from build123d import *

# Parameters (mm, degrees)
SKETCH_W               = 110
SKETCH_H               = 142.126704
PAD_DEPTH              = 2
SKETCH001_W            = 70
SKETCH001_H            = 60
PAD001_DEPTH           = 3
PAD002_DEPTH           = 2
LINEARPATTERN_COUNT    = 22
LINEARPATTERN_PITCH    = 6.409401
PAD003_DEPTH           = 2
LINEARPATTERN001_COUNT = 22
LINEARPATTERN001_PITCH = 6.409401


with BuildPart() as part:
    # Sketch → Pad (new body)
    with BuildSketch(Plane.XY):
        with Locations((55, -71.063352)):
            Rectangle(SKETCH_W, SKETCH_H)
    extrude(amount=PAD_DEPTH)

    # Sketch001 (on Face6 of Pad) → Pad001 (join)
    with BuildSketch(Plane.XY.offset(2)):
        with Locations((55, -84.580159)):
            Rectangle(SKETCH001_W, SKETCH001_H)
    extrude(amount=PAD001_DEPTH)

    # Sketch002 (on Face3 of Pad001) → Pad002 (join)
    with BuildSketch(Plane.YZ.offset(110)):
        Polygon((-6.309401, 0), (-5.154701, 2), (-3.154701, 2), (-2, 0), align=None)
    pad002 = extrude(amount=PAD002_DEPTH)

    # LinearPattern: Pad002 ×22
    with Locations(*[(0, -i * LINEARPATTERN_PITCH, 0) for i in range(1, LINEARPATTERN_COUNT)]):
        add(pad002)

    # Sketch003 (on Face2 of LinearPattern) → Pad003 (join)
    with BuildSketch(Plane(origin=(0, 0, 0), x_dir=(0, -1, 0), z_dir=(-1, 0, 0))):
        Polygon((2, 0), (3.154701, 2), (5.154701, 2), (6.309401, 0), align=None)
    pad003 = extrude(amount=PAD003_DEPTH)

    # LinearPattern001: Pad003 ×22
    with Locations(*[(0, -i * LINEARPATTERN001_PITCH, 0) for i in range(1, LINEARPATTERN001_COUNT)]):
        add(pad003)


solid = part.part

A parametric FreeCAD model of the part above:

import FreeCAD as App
import Part
import Sketcher
Q = App.Units.Quantity


def add_polygon(sketch, points):
    """Adds a closed chain of lines whose ends are joined by coincident constraints."""
    first, n = sketch.GeometryCount, len(points)
    for a, b in zip(points, points[1:] + points[:1]):
        sketch.addGeometry(Part.LineSegment(App.Vector(*a, 0), App.Vector(*b, 0)), False)
    for i in range(n):
        sketch.addConstraint(Sketcher.Constraint("Coincident", first + i, 2, first + (i + 1) % n, 1))

doc = App.newDocument("Part")
body = doc.addObject("PartDesign::Body", "Body")

# Sketch on XY plane
sketch1 = body.newObject("Sketcher::SketchObject", "Sketch")
sketch1.AttachmentSupport = (doc.getObject("XY_Plane"), [""])
sketch1.MapMode = "FlatFace"
add_polygon(sketch1, [(0, 0), (0, -142), (110, -142), (110, 0)])  # lines 0-3
sketch1.addConstraint(Sketcher.Constraint("Vertical", 0))
sketch1.addConstraint(Sketcher.Constraint("Horizontal", 1))
sketch1.addConstraint(Sketcher.Constraint("Vertical", 2))
sketch1.addConstraint(Sketcher.Constraint("Horizontal", 3))
sketch1.addConstraint(Sketcher.Constraint("Coincident", 3, 2, -1, 1))
sketch1.addConstraint(Sketcher.Constraint("DistanceX", 1, 1, 1, 2, 110.0))
sketch1.addConstraint(Sketcher.Constraint("DistanceY", 0, 2, 0, 1, 142.126704))
pad1 = body.newObject("PartDesign::Pad", "Pad")
pad1.Profile = sketch1
pad1.Length = 2

# Sketch on XY plane
sketch2 = body.newObject("Sketcher::SketchObject", "Sketch001")
sketch2.AttachmentSupport = (doc.getObject("XY_Plane"), [""])
sketch2.MapMode = "FlatFace"
sketch2.AttachmentOffset = App.Placement(App.Vector(0, 0, 2), App.Rotation())
add_polygon(sketch2, [(20, -55), (20, -115), (90, -115), (90, -55)])  # lines 0-3
sketch2.addConstraint(Sketcher.Constraint("Vertical", 0))
sketch2.addConstraint(Sketcher.Constraint("Horizontal", 1))
sketch2.addConstraint(Sketcher.Constraint("Vertical", 2))
sketch2.addConstraint(Sketcher.Constraint("Horizontal", 3))
sketch2.addConstraint(Sketcher.Constraint("DistanceX", 1, 1, 1, 2, 70.0))
sketch2.addConstraint(Sketcher.Constraint("DistanceY", 0, 2, 0, 1, 60.0))
sketch2.addConstraint(Sketcher.Constraint("DistanceX", -1, 1, 0, 2, 20.0))
sketch2.addConstraint(Sketcher.Constraint("DistanceY", 0, 2, -1, 1, 114.580159))
pad2 = body.newObject("PartDesign::Pad", "Pad001")
pad2.Profile = sketch2
pad2.Length = 3

# Sketch on YZ plane
sketch3 = body.newObject("Sketcher::SketchObject", "Sketch002")
sketch3.AttachmentSupport = (doc.getObject("YZ_Plane"), [""])
sketch3.MapMode = "FlatFace"
sketch3.AttachmentOffset = App.Placement(App.Vector(0, 0, 110), App.Rotation())
add_polygon(sketch3, [(-5.2, 2), (-6.3, 0), (-2, 0), (-3.2, 2)])  # lines 0-3
sketch3.addConstraint(Sketcher.Constraint("Horizontal", 1))
sketch3.addConstraint(Sketcher.Constraint("Horizontal", 3))
sketch3.addConstraint(Sketcher.Constraint("PointOnObject", 0, 2, -1))
sketch3.addConstraint(Sketcher.Constraint("Equal", 0, 2))
sketch3.addConstraint(Sketcher.Constraint("DistanceX", 3, 2, 3, 1, 2.0))
sketch3.addConstraint(Sketcher.Constraint("Angle", 0, Q("-119.999988 deg")))
sketch3.addConstraint(Sketcher.Constraint("DistanceX", 1, 2, -1, 1, 2.0))
sketch3.addConstraint(Sketcher.Constraint("DistanceY", -1, 1, 2, 2, 2.0))
pad3 = body.newObject("PartDesign::Pad", "Pad002")
pad3.Profile = sketch3
pad3.Length = 2
doc.recompute()

linearpattern = body.newObject("PartDesign::LinearPattern", "LinearPattern")
linearpattern.Originals = [pad3]
linearpattern.Direction = (doc.getObject("Y_Axis"), [""])
linearpattern.Mode = "offset"
linearpattern.Offset = 6.409401
linearpattern.Occurrences = 22
linearpattern.Reversed = True
body.Tip = linearpattern

# Sketch on YZ plane
sketch4 = body.newObject("Sketcher::SketchObject", "Sketch003")
sketch4.AttachmentSupport = (doc.getObject("YZ_Plane"), [""])
sketch4.MapMode = "FlatFace"
add_polygon(sketch4, [(-3.2, 2), (-2, 0), (-6.3, 0), (-5.2, 2)])  # lines 0-3
sketch4.addConstraint(Sketcher.Constraint("Horizontal", 1))
sketch4.addConstraint(Sketcher.Constraint("Horizontal", 3))
sketch4.addConstraint(Sketcher.Constraint("PointOnObject", 0, 2, -1))
sketch4.addConstraint(Sketcher.Constraint("Equal", 0, 2))
sketch4.addConstraint(Sketcher.Constraint("DistanceX", 3, 1, 3, 2, 2.0))
sketch4.addConstraint(Sketcher.Constraint("Angle", 0, Q("-59.99999 deg")))
sketch4.addConstraint(Sketcher.Constraint("DistanceX", 0, 2, -1, 1, 2.0))
sketch4.addConstraint(Sketcher.Constraint("DistanceY", -1, 1, 2, 2, 2.0))
pad4 = body.newObject("PartDesign::Pad", "Pad003")
pad4.Profile = sketch4
pad4.Length = 2
pad4.Reversed = True
doc.recompute()

linearpattern2 = body.newObject("PartDesign::LinearPattern", "LinearPattern001")
linearpattern2.Originals = [pad4]
linearpattern2.Direction = (doc.getObject("Y_Axis"), [""])
linearpattern2.Mode = "offset"
linearpattern2.Offset = 6.409401
linearpattern2.Occurrences = 22
linearpattern2.Reversed = True
body.Tip = linearpattern2

doc.recompute()
